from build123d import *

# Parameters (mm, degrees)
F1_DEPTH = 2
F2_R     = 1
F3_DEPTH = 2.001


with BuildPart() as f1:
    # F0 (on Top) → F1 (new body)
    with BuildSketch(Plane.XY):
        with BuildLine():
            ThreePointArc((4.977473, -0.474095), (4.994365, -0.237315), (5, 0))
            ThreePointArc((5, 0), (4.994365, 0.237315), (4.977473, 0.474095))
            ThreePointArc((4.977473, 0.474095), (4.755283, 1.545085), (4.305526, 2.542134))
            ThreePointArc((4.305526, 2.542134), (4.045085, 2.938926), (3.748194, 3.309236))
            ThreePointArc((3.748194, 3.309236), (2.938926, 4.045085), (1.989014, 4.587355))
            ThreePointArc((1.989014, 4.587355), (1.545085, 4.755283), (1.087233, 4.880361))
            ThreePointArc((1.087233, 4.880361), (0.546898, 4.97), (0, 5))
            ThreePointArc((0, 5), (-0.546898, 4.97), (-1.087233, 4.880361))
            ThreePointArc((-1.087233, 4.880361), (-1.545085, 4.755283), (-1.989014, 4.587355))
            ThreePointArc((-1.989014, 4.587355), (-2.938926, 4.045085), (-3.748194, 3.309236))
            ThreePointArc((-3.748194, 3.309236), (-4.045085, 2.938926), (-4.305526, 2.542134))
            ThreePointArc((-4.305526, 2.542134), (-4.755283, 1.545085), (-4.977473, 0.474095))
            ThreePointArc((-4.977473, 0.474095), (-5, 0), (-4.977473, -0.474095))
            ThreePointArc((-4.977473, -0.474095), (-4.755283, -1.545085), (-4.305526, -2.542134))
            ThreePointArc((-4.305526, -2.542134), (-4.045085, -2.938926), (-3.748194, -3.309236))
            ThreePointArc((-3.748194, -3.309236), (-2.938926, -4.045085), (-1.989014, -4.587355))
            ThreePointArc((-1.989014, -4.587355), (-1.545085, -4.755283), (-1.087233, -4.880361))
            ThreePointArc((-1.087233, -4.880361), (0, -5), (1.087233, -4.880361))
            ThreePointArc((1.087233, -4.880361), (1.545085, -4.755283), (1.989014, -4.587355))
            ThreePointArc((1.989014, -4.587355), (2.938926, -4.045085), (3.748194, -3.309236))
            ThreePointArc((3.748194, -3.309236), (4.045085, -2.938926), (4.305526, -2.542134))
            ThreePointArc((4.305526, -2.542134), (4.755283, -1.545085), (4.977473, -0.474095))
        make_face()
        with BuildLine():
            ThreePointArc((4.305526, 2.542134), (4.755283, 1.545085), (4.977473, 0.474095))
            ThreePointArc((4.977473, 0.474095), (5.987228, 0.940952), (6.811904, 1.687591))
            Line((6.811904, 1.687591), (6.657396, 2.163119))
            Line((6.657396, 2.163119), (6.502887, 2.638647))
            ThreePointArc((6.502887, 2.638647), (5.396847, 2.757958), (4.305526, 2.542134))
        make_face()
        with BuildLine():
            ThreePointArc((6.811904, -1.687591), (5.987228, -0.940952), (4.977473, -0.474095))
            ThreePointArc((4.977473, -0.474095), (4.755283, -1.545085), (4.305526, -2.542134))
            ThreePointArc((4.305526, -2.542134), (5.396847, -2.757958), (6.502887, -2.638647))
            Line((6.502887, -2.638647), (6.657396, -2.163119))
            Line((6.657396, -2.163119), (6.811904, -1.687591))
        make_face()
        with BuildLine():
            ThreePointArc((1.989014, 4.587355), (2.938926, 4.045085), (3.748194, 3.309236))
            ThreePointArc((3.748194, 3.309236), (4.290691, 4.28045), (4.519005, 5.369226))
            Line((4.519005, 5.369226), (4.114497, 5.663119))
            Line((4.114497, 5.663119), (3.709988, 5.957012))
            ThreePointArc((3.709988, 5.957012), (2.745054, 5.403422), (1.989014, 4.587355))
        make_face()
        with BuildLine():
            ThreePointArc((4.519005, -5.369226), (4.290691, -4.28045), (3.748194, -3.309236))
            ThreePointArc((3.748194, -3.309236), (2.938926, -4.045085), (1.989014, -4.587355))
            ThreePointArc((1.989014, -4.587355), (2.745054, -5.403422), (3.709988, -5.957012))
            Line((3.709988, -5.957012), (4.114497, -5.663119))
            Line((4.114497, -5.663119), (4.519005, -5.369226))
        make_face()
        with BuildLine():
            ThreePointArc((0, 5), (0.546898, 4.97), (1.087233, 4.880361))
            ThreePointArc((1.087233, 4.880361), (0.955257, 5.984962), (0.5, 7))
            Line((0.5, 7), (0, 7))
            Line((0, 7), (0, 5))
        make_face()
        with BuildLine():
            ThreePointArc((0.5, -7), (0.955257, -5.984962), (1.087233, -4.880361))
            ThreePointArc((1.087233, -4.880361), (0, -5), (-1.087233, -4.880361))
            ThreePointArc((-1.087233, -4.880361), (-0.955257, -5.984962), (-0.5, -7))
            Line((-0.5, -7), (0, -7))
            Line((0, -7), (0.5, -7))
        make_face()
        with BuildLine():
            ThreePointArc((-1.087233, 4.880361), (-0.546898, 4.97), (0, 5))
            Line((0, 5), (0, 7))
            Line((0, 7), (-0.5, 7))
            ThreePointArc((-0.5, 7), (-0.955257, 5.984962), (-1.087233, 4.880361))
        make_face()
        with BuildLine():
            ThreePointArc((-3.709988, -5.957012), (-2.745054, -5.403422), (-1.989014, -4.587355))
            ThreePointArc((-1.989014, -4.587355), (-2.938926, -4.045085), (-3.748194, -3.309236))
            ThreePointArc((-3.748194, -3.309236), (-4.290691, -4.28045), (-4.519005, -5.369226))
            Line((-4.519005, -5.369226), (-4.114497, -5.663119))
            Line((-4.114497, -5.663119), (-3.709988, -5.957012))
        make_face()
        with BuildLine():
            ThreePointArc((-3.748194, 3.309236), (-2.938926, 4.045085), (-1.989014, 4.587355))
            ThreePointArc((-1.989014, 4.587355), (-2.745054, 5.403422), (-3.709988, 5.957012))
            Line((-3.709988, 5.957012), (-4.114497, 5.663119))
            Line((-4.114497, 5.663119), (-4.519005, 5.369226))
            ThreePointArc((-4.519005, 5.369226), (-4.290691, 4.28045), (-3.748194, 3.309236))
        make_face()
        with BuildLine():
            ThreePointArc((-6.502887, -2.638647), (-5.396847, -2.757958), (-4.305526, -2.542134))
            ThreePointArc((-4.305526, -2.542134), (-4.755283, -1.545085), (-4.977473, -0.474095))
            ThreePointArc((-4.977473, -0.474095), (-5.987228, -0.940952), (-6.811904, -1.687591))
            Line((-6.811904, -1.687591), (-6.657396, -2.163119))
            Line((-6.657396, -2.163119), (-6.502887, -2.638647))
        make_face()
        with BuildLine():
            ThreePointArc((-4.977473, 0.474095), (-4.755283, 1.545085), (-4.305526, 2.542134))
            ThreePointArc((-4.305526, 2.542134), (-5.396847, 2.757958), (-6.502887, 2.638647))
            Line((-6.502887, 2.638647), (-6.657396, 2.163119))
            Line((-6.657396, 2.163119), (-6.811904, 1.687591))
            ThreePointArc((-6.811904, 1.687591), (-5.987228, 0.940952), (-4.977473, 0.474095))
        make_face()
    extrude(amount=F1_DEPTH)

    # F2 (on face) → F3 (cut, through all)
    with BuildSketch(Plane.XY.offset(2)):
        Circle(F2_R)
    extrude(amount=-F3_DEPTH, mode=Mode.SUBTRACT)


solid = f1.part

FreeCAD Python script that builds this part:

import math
import FreeCAD as App
import Part
import Sketcher

V = App.Vector
Q = App.Units.Quantity

doc = App.newDocument("Part")
body = doc.addObject("PartDesign::Body", "Body")

sketch1 = body.newObject("Sketcher::SketchObject", "Sketch")
sketch1.AttachmentSupport = (doc.getObject("XY_Plane"), [""])
sketch1.MapMode = "FlatFace"
sketch1.addGeometry(Part.ArcOfCircle(Part.Circle(V(-0.000142, 0.000003, 0), V(0, 0, 1), 5.000142), math.radians(-5.440782), math.radians(-0.000035)), False)
sketch1.addGeometry(Part.ArcOfCircle(Part.Circle(V(-0.000142, -0.000003, 0), V(0, 0, 1), 5.000142), math.radians(0.000035), math.radians(5.440782)), False)
sketch1.addGeometry(Part.ArcOfCircle(Part.Circle(V(3.951843, 4.017824, 0), V(0, 0, 1), 3.689164), math.radians(-73.858449), math.radians(-39.171415)), False)
sketch1.addGeometry(Part.LineSegment(V(6.811904, 1.687591, 0), V(6.657396, 2.163119, 0)), False)
sketch1.addGeometry(Part.LineSegment(V(6.657396, 2.163119, 0), V(6.502887, 2.638647, 0)), False)
sketch1.addGeometry(Part.ArcOfCircle(Part.Circle(V(5.558727, -0.927655, 0), V(0, 0, 1), 3.689166), math.radians(75.171433), math.radians(109.858452)), False)
sketch1.addGeometry(Part.ArcOfCircle(Part.Circle(V(-0.000029, -0.00002, 0), V(0, 0, 1), 5.000035), math.radians(30.559125), math.radians(41.440853)), False)
sketch1.addGeometry(Part.ArcOfCircle(Part.Circle(V(0.835485, 5.573326, 0), V(0, 0, 1), 3.68917), math.radians(-37.858427), math.radians(-3.171453)), False)
sketch1.addGeometry(Part.LineSegment(V(4.519005, 5.369226, 0), V(4.114497, 5.663119, 0)), False)
sketch1.addGeometry(Part.LineSegment(V(4.114497, 5.663119, 0), V(3.709988, 5.957012, 0)), False)
sketch1.addGeometry(Part.ArcOfCircle(Part.Circle(V(5.042379, 2.516833, 0), V(0, 0, 1), 3.689187), math.radians(111.17152), math.radians(145.858345)), False)
sketch1.addGeometry(Part.ArcOfCircle(Part.Circle(V(0.000024, 0.000068, 0), V(0, 0, 1), 4.999929), math.radians(66.559052), math.radians(77.440995)), False)
sketch1.addGeometry(Part.ArcOfCircle(Part.Circle(V(-2.599994, 5.000002, 0), V(0, 0, 1), 3.689167), math.radians(-1.858441), math.radians(32.828574)), False)
sketch1.addGeometry(Part.LineSegment(V(0.5, 7, 0), V(-0.5, 7, 0)), False)
sketch1.addGeometry(Part.ArcOfCircle(Part.Circle(V(2.599994, 5.000002, 0), V(0, 0, 1), 3.689167), math.radians(147.171426), math.radians(181.858441)), False)
sketch1.addGeometry(Part.ArcOfCircle(Part.Circle(V(-0.000024, 0.000068, 0), V(0, 0, 1), 4.999929), math.radians(102.559005), math.radians(113.440948)), False)
sketch1.addGeometry(Part.ArcOfCircle(Part.Circle(V(-5.042379, 2.516833, 0), V(0, 0, 1), 3.689187), math.radians(34.141655), math.radians(68.82848)), False)
sketch1.addGeometry(Part.LineSegment(V(-3.709988, 5.957012, 0), V(-4.114497, 5.663119, 0)), False)
sketch1.addGeometry(Part.LineSegment(V(-4.114497, 5.663119, 0), V(-4.519005, 5.369226, 0)), False)
sketch1.addGeometry(Part.ArcOfCircle(Part.Circle(V(-0.835485, 5.573326, 0), V(0, 0, 1), 3.68917), math.radians(-176.828547), math.radians(-142.141573)), False)
sketch1.addGeometry(Part.ArcOfCircle(Part.Circle(V(0.000029, -0.00002, 0), V(0, 0, 1), 5.000035), math.radians(138.559147), math.radians(149.440875)), False)
sketch1.addGeometry(Part.ArcOfCircle(Part.Circle(V(-5.558727, -0.927655, 0), V(0, 0, 1), 3.689166), math.radians(70.141548), math.radians(104.828567)), False)
sketch1.addGeometry(Part.LineSegment(V(-6.502887, 2.638647, 0), V(-6.657396, 2.163119, 0)), False)
sketch1.addGeometry(Part.LineSegment(V(-6.657396, 2.163119, 0), V(-6.811904, 1.687591, 0)), False)
sketch1.addGeometry(Part.ArcOfCircle(Part.Circle(V(-3.951843, 4.017824, 0), V(0, 0, 1), 3.689164), math.radians(-140.828585), math.radians(-106.141551)), False)
sketch1.addGeometry(Part.ArcOfCircle(Part.Circle(V(0.000078, 0, 0), V(0, 0, 1), 5.000078), math.radians(174.559183), math.radians(185.440817)), False)
sketch1.addGeometry(Part.ArcOfCircle(Part.Circle(V(-3.951843, -4.017824, 0), V(0, 0, 1), 3.689164), math.radians(106.141551), math.radians(140.828585)), False)
sketch1.addGeometry(Part.LineSegment(V(-6.811904, -1.687591, 0), V(-6.657396, -2.163119, 0)), False)
sketch1.addGeometry(Part.LineSegment(V(-6.657396, -2.163119, 0), V(-6.502887, -2.638647, 0)), False)
sketch1.addGeometry(Part.ArcOfCircle(Part.Circle(V(-5.558727, 0.927655, 0), V(0, 0, 1), 3.689166), math.radians(-104.828567), math.radians(-70.141548)), False)
sketch1.addGeometry(Part.ArcOfCircle(Part.Circle(V(0.000029, 0.00002, 0), V(0, 0, 1), 5.000035), math.radians(-149.440875), math.radians(-138.559147)), False)
sketch1.addGeometry(Part.ArcOfCircle(Part.Circle(V(-0.835485, -5.573326, 0), V(0, 0, 1), 3.68917), math.radians(142.141573), math.radians(176.828547)), False)
sketch1.addGeometry(Part.LineSegment(V(-4.519005, -5.369226, 0), V(-4.114497, -5.663119, 0)), False)
sketch1.addGeometry(Part.LineSegment(V(-4.114497, -5.663119, 0), V(-3.709988, -5.957012, 0)), False)
sketch1.addGeometry(Part.ArcOfCircle(Part.Circle(V(-5.042379, -2.516833, 0), V(0, 0, 1), 3.689187), math.radians(-68.82848), math.radians(-34.141655)), False)
sketch1.addGeometry(Part.ArcOfCircle(Part.Circle(V(-0.000024, -0.000068, 0), V(0, 0, 1), 4.999929), math.radians(-113.440948), math.radians(-102.559005)), False)
sketch1.addGeometry(Part.ArcOfCircle(Part.Circle(V(2.599994, -5.000002, 0), V(0, 0, 1), 3.689167), math.radians(178.141559), math.radians(212.828574)), False)
sketch1.addGeometry(Part.LineSegment(V(-0.5, -7, 0), V(0.5, -7, 0)), False)
sketch1.addGeometry(Part.ArcOfCircle(Part.Circle(V(-2.599994, -5.000002, 0), V(0, 0, 1), 3.689167), math.radians(-32.828574), math.radians(1.858441)), False)
sketch1.addGeometry(Part.ArcOfCircle(Part.Circle(V(0.000024, -0.000068, 0), V(0, 0, 1), 4.999929), math.radians(-77.440995), math.radians(-66.559052)), False)
sketch1.addGeometry(Part.ArcOfCircle(Part.Circle(V(5.042379, -2.516833, 0), V(0, 0, 1), 3.689187), math.radians(-145.858345), math.radians(-111.17152)), False)
sketch1.addGeometry(Part.LineSegment(V(3.709988, -5.957012, 0), V(4.114497, -5.663119, 0)), False)
sketch1.addGeometry(Part.LineSegment(V(4.114497, -5.663119, 0), V(4.519005, -5.369226, 0)), False)
sketch1.addGeometry(Part.ArcOfCircle(Part.Circle(V(0.835485, -5.573326, 0), V(0, 0, 1), 3.68917), math.radians(3.171453), math.radians(37.858427)), False)
sketch1.addGeometry(Part.ArcOfCircle(Part.Circle(V(-0.000029, 0.00002, 0), V(0, 0, 1), 5.000035), math.radians(-41.440853), math.radians(-30.559125)), False)
sketch1.addGeometry(Part.ArcOfCircle(Part.Circle(V(5.558727, 0.927655, 0), V(0, 0, 1), 3.689166), math.radians(-109.858452), math.radians(-75.171433)), False)
sketch1.addGeometry(Part.LineSegment(V(6.502887, -2.638647, 0), V(6.657396, -2.163119, 0)), False)
sketch1.addGeometry(Part.LineSegment(V(6.657396, -2.163119, 0), V(6.811904, -1.687591, 0)), False)
sketch1.addGeometry(Part.ArcOfCircle(Part.Circle(V(3.951843, -4.017824, 0), V(0, 0, 1), 3.689164), math.radians(39.171415), math.radians(73.858449)), False)
sketch1.addConstraint(Sketcher.Constraint("Tangent", 0, 2, 1, 1))
sketch1.addConstraint(Sketcher.Constraint("Coincident", 1, 2, 2, 1))
sketch1.addConstraint(Sketcher.Constraint("Coincident", 2, 2, 3, 1))
sketch1.addConstraint(Sketcher.Constraint("Coincident", 3, 2, 4, 1))
sketch1.addConstraint(Sketcher.Constraint("Coincident", 4, 2, 5, 1))
sketch1.addConstraint(Sketcher.Constraint("Coincident", 5, 2, 6, 1))
sketch1.addConstraint(Sketcher.Constraint("Coincident", 6, 2, 7, 1))
sketch1.addConstraint(Sketcher.Constraint("Coincident", 7, 2, 8, 1))
sketch1.addConstraint(Sketcher.Constraint("Coincident", 8, 2, 9, 1))
sketch1.addConstraint(Sketcher.Constraint("Coincident", 9, 2, 10, 1))
sketch1.addConstraint(Sketcher.Constraint("Coincident", 10, 2, 11, 1))
sketch1.addConstraint(Sketcher.Constraint("Coincident", 11, 2, 12, 1))
sketch1.addConstraint(Sketcher.Constraint("Coincident", 12, 2, 13, 1))
sketch1.addConstraint(Sketcher.Constraint("Coincident", 13, 2, 14, 1))
sketch1.addConstraint(Sketcher.Constraint("Coincident", 14, 2, 15, 1))
sketch1.addConstraint(Sketcher.Constraint("Coincident", 15, 2, 16, 1))
sketch1.addConstraint(Sketcher.Constraint("Coincident", 16, 2, 17, 1))
sketch1.addConstraint(Sketcher.Constraint("Coincident", 17, 2, 18, 1))
sketch1.addConstraint(Sketcher.Constraint("Coincident", 18, 2, 19, 1))
sketch1.addConstraint(Sketcher.Constraint("Coincident", 19, 2, 20, 1))
sketch1.addConstraint(Sketcher.Constraint("Coincident", 20, 2, 21, 1))
sketch1.addConstraint(Sketcher.Constraint("Coincident", 21, 2, 22, 1))
sketch1.addConstraint(Sketcher.Constraint("Coincident", 22, 2, 23, 1))
sketch1.addConstraint(Sketcher.Constraint("Coincident", 23, 2, 24, 1))
sketch1.addConstraint(Sketcher.Constraint("Coincident", 24, 2, 25, 1))
sketch1.addConstraint(Sketcher.Constraint("Coincident", 25, 2, 26, 1))
sketch1.addConstraint(Sketcher.Constraint("Coincident", 26, 2, 27, 1))
sketch1.addConstraint(Sketcher.Constraint("Coincident", 27, 2, 28, 1))
sketch1.addConstraint(Sketcher.Constraint("Coincident", 28, 2, 29, 1))
sketch1.addConstraint(Sketcher.Constraint("Coincident", 29, 2, 30, 1))
sketch1.addConstraint(Sketcher.Constraint("Coincident", 30, 2, 31, 1))
sketch1.addConstraint(Sketcher.Constraint("Coincident", 31, 2, 32, 1))
sketch1.addConstraint(Sketcher.Constraint("Coincident", 32, 2, 33, 1))
sketch1.addConstraint(Sketcher.Constraint("Coincident", 33, 2, 34, 1))
sketch1.addConstraint(Sketcher.Constraint("Coincident", 34, 2, 35, 1))
sketch1.addConstraint(Sketcher.Constraint("Coincident", 35, 2, 36, 1))
sketch1.addConstraint(Sketcher.Constraint("Coincident", 36, 2, 37, 1))
sketch1.addConstraint(Sketcher.Constraint("Coincident", 37, 2, 38, 1))
sketch1.addConstraint(Sketcher.Constraint("Coincident", 38, 2, 39, 1))
sketch1.addConstraint(Sketcher.Constraint("Coincident", 39, 2, 40, 1))
sketch1.addConstraint(Sketcher.Constraint("Coincident", 40, 2, 41, 1))
sketch1.addConstraint(Sketcher.Constraint("Coincident", 41, 2, 42, 1))
sketch1.addConstraint(Sketcher.Constraint("Coincident", 42, 2, 43, 1))
sketch1.addConstraint(Sketcher.Constraint("Coincident", 43, 2, 44, 1))
sketch1.addConstraint(Sketcher.Constraint("Coincident", 44, 2, 45, 1))
sketch1.addConstraint(Sketcher.Constraint("Coincident", 45, 2, 46, 1))
sketch1.addConstraint(Sketcher.Constraint("Coincident", 46, 2, 47, 1))
sketch1.addConstraint(Sketcher.Constraint("Coincident", 47, 2, 48, 1))
sketch1.addConstraint(Sketcher.Constraint("Coincident", 48, 2, 0, 1))
sketch1.addConstraint(Sketcher.Constraint("Horizontal", 13))
sketch1.addConstraint(Sketcher.Constraint("Horizontal", 37))
sketch1.addConstraint(Sketcher.Constraint("Equal", 0, 1))
sketch1.addConstraint(Sketcher.Constraint("Equal", 2, 5))
sketch1.addConstraint(Sketcher.Constraint("Equal", 5, 12))
sketch1.addConstraint(Sketcher.Constraint("Equal", 12, 14))
sketch1.addConstraint(Sketcher.Constraint("Equal", 11, 15))
sketch1.addConstraint(Sketcher.Constraint("Equal", 10, 16))
sketch1.addConstraint(Sketcher.Constraint("Equal", 7, 19))
sketch1.addConstraint(Sketcher.Constraint("Equal", 6, 20))
sketch1.addConstraint(Sketcher.Constraint("Equal", 14, 21))
sketch1.addConstraint(Sketcher.Constraint("Equal", 21, 24))
sketch1.addConstraint(Sketcher.Constraint("Equal", 24, 26))
sketch1.addConstraint(Sketcher.Constraint("Equal", 26, 29))
sketch1.addConstraint(Sketcher.Constraint("Equal", 20, 30))
sketch1.addConstraint(Sketcher.Constraint("Equal", 19, 31))
sketch1.addConstraint(Sketcher.Constraint("Equal", 16, 34))
sketch1.addConstraint(Sketcher.Constraint("Equal", 15, 35))
sketch1.addConstraint(Sketcher.Constraint("Equal", 29, 36))
sketch1.addConstraint(Sketcher.Constraint("Equal", 36, 38))
sketch1.addConstraint(Sketcher.Constraint("Equal", 35, 39))
sketch1.addConstraint(Sketcher.Constraint("Equal", 34, 40))
sketch1.addConstraint(Sketcher.Constraint("Equal", 31, 43))
sketch1.addConstraint(Sketcher.Constraint("Equal", 30, 44))
sketch1.addConstraint(Sketcher.Constraint("Equal", 38, 45))
sketch1.addConstraint(Sketcher.Constraint("Equal", 45, 48))
sketch1.addConstraint(Sketcher.Constraint("Symmetric", 2, 3, 26, 3, -1, 1))
sketch1.addConstraint(Sketcher.Constraint("Symmetric", 5, 3, 29, 3, -1, 1))
sketch1.addConstraint(Sketcher.Constraint("Symmetric", 6, 3, 30, 3, -1, 1))
sketch1.addConstraint(Sketcher.Constraint("Symmetric", 7, 3, 31, 3, -1, 1))
sketch1.addConstraint(Sketcher.Constraint("Symmetric", 10, 3, 34, 3, -1, 1))
sketch1.addConstraint(Sketcher.Constraint("Symmetric", 11, 3, 35, 3, -1, 1))
sketch1.addConstraint(Sketcher.Constraint("Symmetric", 12, 3, 36, 3, -1, 1))
sketch1.addConstraint(Sketcher.Constraint("Symmetric", 14, 3, 38, 3, -1, 1))
sketch1.addConstraint(Sketcher.Constraint("Symmetric", 15, 3, 39, 3, -1, 1))
sketch1.addConstraint(Sketcher.Constraint("Symmetric", 16, 3, 40, 3, -1, 1))
sketch1.addConstraint(Sketcher.Constraint("Symmetric", 19, 3, 43, 3, -1, 1))
sketch1.addConstraint(Sketcher.Constraint("Symmetric", 20, 3, 44, 3, -1, 1))
sketch1.addConstraint(Sketcher.Constraint("Symmetric", 21, 3, 45, 3, -1, 1))
sketch1.addConstraint(Sketcher.Constraint("Symmetric", 24, 3, 48, 3, -1, 1))
sketch1.addConstraint(Sketcher.Constraint("Symmetric", 3, 2, 27, 2, -1, 1))
sketch1.addConstraint(Sketcher.Constraint("Symmetric", 8, 2, 32, 2, -1, 1))
sketch1.addConstraint(Sketcher.Constraint("Symmetric", 17, 2, 41, 2, -1, 1))
sketch1.addConstraint(Sketcher.Constraint("Symmetric", 22, 2, 46, 2, -1, 1))
sketch1.addConstraint(Sketcher.Constraint("Symmetric", 12, 3, 14, 3, -2))
sketch1.addConstraint(Sketcher.Constraint("Symmetric", 11, 3, 15, 3, -2))
sketch1.addConstraint(Sketcher.Constraint("Symmetric", 10, 3, 16, 3, -2))
sketch1.addConstraint(Sketcher.Constraint("Symmetric", 7, 3, 19, 3, -2))
sketch1.addConstraint(Sketcher.Constraint("Symmetric", 6, 3, 20, 3, -2))
sketch1.addConstraint(Sketcher.Constraint("Symmetric", 5, 3, 21, 3, -2))
sketch1.addConstraint(Sketcher.Constraint("Symmetric", 2, 3, 24, 3, -2))
sketch1.addConstraint(Sketcher.Constraint("Symmetric", 8, 2, 17, 2, -2))
sketch1.addConstraint(Sketcher.Constraint("Symmetric", 3, 2, 22, 2, -2))
sketch1.addConstraint(Sketcher.Constraint("PointOnObject", 25, 3, -1))
sketch1.addConstraint(Sketcher.Constraint("PointOnObject", 0, 2, -1))
sketch1.addConstraint(Sketcher.Constraint("Parallel", 3, 4))
sketch1.addConstraint(Sketcher.Constraint("Parallel", 8, 9))
sketch1.addConstraint(Sketcher.Constraint("Parallel", 17, 18))
sketch1.addConstraint(Sketcher.Constraint("Parallel", 22, 23))
sketch1.addConstraint(Sketcher.Constraint("Parallel", 4, 27))
sketch1.addConstraint(Sketcher.Constraint("Parallel", 27, 28))
sketch1.addConstraint(Sketcher.Constraint("Parallel", 9, 32))
sketch1.addConstraint(Sketcher.Constraint("Parallel", 32, 33))
sketch1.addConstraint(Sketcher.Constraint("Parallel", 18, 41))
sketch1.addConstraint(Sketcher.Constraint("Parallel", 41, 42))
sketch1.addConstraint(Sketcher.Constraint("Parallel", 23, 46))
sketch1.addConstraint(Sketcher.Constraint("Parallel", 46, 47))
sketch1.addConstraint(Sketcher.Constraint("Horizontal", 9, 2, 16, 2))
sketch1.addConstraint(Sketcher.Constraint("Horizontal", 4, 2, 21, 2))
sketch1.addConstraint(Sketcher.Constraint("Horizontal", 1, 2, 24, 2))
sketch1.addConstraint(Sketcher.Constraint("Horizontal", 25, 2, 48, 2))
sketch1.addConstraint(Sketcher.Constraint("Vertical", 13, 2, 36, 2))
sketch1.addConstraint(Sketcher.Constraint("Equal", 3, 4))
sketch1.addConstraint(Sketcher.Constraint("Equal", 4, 8))
sketch1.addConstraint(Sketcher.Constraint("Equal", 8, 9))
sketch1.addConstraint(Sketcher.Constraint("DistanceX", 13, 2, 13, 1, 1.0))
sketch1.addConstraint(Sketcher.Constraint("Angle", 9, Q("143.999999 deg")))
sketch1.addConstraint(Sketcher.Constraint("DistanceY", -1, 1, 12, 3, 5.000002))
sketch1.addConstraint(Sketcher.Constraint("DistanceX", -1, 1, 0, 2, 5.0))
sketch1.addConstraint(Sketcher.Constraint("DistanceY", -1, 1, 12, 2, 7.0))
sketch1.addConstraint(Sketcher.Constraint("Distance", 3, 0.5))
sketch1.addConstraint(Sketcher.Constraint("Radius", 7, 3.68917))
sketch1.addConstraint(Sketcher.Constraint("Radius", 11, 4.999929))
sketch1.addConstraint(Sketcher.Constraint("Radius", 25, 5.000078))
sketch1.addConstraint(Sketcher.Constraint("Radius", 0, 5.000142))
sketch1.addConstraint(Sketcher.Constraint("Radius", 2, 3.689164))
sketch1.addConstraint(Sketcher.Constraint("Radius", 6, 5.000035))
sketch1.addConstraint(Sketcher.Constraint("Radius", 10, 3.689187))
sketch1.addConstraint(Sketcher.Constraint("DistanceX", -1, 1, 10, 3, 5.042379))
sketch1.addConstraint(Sketcher.Constraint("DistanceY", -1, 1, 2, 2, 1.687591))
sketch1.addConstraint(Sketcher.Constraint("DistanceY", -1, 1, 3, 2, 2.163119))
sketch1.addConstraint(Sketcher.Constraint("DistanceY", -1, 1, 8, 2, 5.663119))
sketch1.addConstraint(Sketcher.Constraint("DistanceX", -1, 1, 9, 2, 3.709988))
sketch1.addConstraint(Sketcher.Constraint("DistanceY", -1, 1, 11, 2, 4.880361))
sketch1.addConstraint(Sketcher.Constraint("DistanceX", -1, 1, 2, 3, 3.951843))
sketch1.addConstraint(Sketcher.Constraint("DistanceY", -1, 1, 2, 3, 4.017824))
sketch1.addConstraint(Sketcher.Constraint("DistanceX", -1, 1, 5, 3, 5.558727))
sketch1.addConstraint(Sketcher.Constraint("DistanceX", -1, 1, 7, 3, 0.835485))
sketch1.addConstraint(Sketcher.Constraint("DistanceX", -1, 1, 5, 2, 4.305526))
sketch1.addConstraint(Sketcher.Constraint("DistanceX", -1, 1, 6, 2, 3.748194))
sketch1.addConstraint(Sketcher.Constraint("DistanceX", -1, 1, 10, 2, 1.989014))
pad1 = body.newObject("PartDesign::Pad", "Pad")
pad1.Profile = sketch1
pad1.Length = 2

sketch2 = body.newObject("Sketcher::SketchObject", "Sketch001")
sketch2.AttachmentSupport = (doc.getObject("XY_Plane"), [""])
sketch2.MapMode = "FlatFace"
sketch2.AttachmentOffset = App.Placement(V(0, 0, 2), App.Rotation())
sketch2.addGeometry(Part.Circle(V(0, 0, 0), V(0, 0, 1), 1), False)
sketch2.addConstraint(Sketcher.Constraint("Coincident", 0, 3, -1, 1))
sketch2.addConstraint(Sketcher.Constraint("Diameter", 0, 2.0))
pocket1 = body.newObject("PartDesign::Pocket", "Pocket")
pocket1.Profile = sketch2
pocket1.Type = "ThroughAll"

doc.recompute()
